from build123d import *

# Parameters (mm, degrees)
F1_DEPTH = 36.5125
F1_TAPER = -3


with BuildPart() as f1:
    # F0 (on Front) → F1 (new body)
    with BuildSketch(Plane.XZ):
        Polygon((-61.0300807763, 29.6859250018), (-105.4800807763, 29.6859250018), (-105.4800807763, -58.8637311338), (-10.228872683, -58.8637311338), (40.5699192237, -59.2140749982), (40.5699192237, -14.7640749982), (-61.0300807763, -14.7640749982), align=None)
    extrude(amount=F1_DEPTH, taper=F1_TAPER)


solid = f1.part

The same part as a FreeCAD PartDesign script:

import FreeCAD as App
import Part
import Sketcher
from FreeCAD import Vector
Q = App.Units.Quantity


def add_polygon(sketch, points):
    """Adds a closed chain of lines whose ends are joined by coincident constraints."""
    first, n = sketch.GeometryCount, len(points)
    for a, b in zip(points, points[1:] + points[:1]):
        sketch.addGeometry(Part.LineSegment(App.Vector(*a, 0), App.Vector(*b, 0)), False)
    for i in range(n):
        sketch.addConstraint(Sketcher.Constraint("Coincident", first + i, 2, first + (i + 1) % n, 1))

doc = App.newDocument("Part")
body = doc.addObject("PartDesign::Body", "Body")

sketch1 = body.newObject("Sketcher::SketchObject", "Sketch")
sketch1.AttachmentSupport = (doc.getObject("XZ_Plane"), [""])
sketch1.MapMode = "FlatFace"
add_polygon(sketch1, [(-61, 30), (-105, 30), (-105, -59), (-10, -59), (41, -59), (41, -15), (-61, -15)])
sketch1.addConstraint(Sketcher.Constraint("Horizontal", 0))
sketch1.addConstraint(Sketcher.Constraint("Vertical", 1))
sketch1.addConstraint(Sketcher.Constraint("Horizontal", 2))
sketch1.addConstraint(Sketcher.Constraint("Vertical", 4))
sketch1.addConstraint(Sketcher.Constraint("Horizontal", 5))
sketch1.addConstraint(Sketcher.Constraint("Vertical", 6))
sketch1.addConstraint(Sketcher.Constraint("Equal", 0, 4))
sketch1.addConstraint(Sketcher.Constraint("Equal", 4, 6))
sketch1.addConstraint(Sketcher.Constraint("DistanceX", 5, 2, 5, 1, Q("4 in")))
sketch1.addConstraint(Sketcher.Constraint("Distance", 3, Q("2 in")))
sketch1.addConstraint(Sketcher.Constraint("DistanceX", 0, 2, 0, 1, Q("1.75 in")))
sketch1.addConstraint(Sketcher.Constraint("DistanceX", 2, 1, 2, 2, 95.251208))
sketch1.addConstraint(Sketcher.Constraint("DistanceX", 0, 2, -1, 1, 105.480081))
sketch1.addConstraint(Sketcher.Constraint("DistanceY", 1, 2, -1, 1, 58.863731))
pad1 = body.newObject("PartDesign::Pad", "Pad")
pad1.Profile = sketch1
pad1.Length = Q("1.4375 in")
pad1.TaperAngle = 3

doc.recompute()
